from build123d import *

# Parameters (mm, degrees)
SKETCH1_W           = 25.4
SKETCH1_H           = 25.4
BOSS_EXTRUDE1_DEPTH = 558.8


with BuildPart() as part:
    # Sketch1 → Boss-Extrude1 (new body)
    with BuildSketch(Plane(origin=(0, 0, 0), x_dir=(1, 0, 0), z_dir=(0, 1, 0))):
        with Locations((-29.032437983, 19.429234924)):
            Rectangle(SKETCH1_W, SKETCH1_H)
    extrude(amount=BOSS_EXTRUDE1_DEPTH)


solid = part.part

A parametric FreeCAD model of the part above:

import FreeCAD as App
import Part
import Sketcher
from FreeCAD import Vector
Q = App.Units.Quantity

doc = App.newDocument("Part")
params = doc.addObject("Spreadsheet::Sheet", "Params")
for row, (alias, value) in enumerate([
    ("sketch1_width", "1 in"),
    ("pad1_length", "22 in"),
], start=1):
    params.set(f"A{row}", alias)
    params.set(f"B{row}", "=" + value)
    params.setAlias(f"B{row}", alias)

body = doc.addObject("PartDesign::Body", "Body")

# Sketch on XZ plane
sketch1 = body.newObject("Sketcher::SketchObject", "Sketch")
sketch1.AttachmentSupport = (doc.getObject("XZ_Plane"), [""])
sketch1.MapMode = "FlatFace"
sketch1.addGeometry(Part.LineSegment(Vector(-42, -32, 0), Vector(-42, -7, 0)), False)
sketch1.addGeometry(Part.LineSegment(Vector(-42, -7, 0), Vector(-16, -7, 0)), False)
sketch1.addGeometry(Part.LineSegment(Vector(-16, -7, 0), Vector(-16, -32, 0)), False)
sketch1.addGeometry(Part.LineSegment(Vector(-16, -32, 0), Vector(-42, -32, 0)), False)
sketch1.addConstraint(Sketcher.Constraint("Coincident", 0, 2, 1, 1))
sketch1.addConstraint(Sketcher.Constraint("Coincident", 1, 2, 2, 1))
sketch1.addConstraint(Sketcher.Constraint("Coincident", 2, 2, 3, 1))
sketch1.addConstraint(Sketcher.Constraint("Coincident", 3, 2, 0, 1))
sketch1.addConstraint(Sketcher.Constraint("Vertical", 0))
sketch1.addConstraint(Sketcher.Constraint("Horizontal", 1))
sketch1.addConstraint(Sketcher.Constraint("Vertical", 2))
sketch1.addConstraint(Sketcher.Constraint("Horizontal", 3))
sketch1.addConstraint(Sketcher.Constraint("Equal", 3, 0))
sketch1.addConstraint(Sketcher.Constraint("DistanceX", 1, 1, 1, 2, Q("1 in")))
sketch1.addConstraint(Sketcher.Constraint("DistanceX", 0, 2, -1, 1, 41.732438))
sketch1.addConstraint(Sketcher.Constraint("DistanceY", 0, 2, -1, 1, 6.729235))
sketch1.setExpression("Constraints[9]", "Params.sketch1_width")
pad1 = body.newObject("PartDesign::Pad", "Pad")
pad1.Profile = sketch1
pad1.setExpression("Length", "Params.pad1_length")
pad1.Reversed = True

doc.recompute()
